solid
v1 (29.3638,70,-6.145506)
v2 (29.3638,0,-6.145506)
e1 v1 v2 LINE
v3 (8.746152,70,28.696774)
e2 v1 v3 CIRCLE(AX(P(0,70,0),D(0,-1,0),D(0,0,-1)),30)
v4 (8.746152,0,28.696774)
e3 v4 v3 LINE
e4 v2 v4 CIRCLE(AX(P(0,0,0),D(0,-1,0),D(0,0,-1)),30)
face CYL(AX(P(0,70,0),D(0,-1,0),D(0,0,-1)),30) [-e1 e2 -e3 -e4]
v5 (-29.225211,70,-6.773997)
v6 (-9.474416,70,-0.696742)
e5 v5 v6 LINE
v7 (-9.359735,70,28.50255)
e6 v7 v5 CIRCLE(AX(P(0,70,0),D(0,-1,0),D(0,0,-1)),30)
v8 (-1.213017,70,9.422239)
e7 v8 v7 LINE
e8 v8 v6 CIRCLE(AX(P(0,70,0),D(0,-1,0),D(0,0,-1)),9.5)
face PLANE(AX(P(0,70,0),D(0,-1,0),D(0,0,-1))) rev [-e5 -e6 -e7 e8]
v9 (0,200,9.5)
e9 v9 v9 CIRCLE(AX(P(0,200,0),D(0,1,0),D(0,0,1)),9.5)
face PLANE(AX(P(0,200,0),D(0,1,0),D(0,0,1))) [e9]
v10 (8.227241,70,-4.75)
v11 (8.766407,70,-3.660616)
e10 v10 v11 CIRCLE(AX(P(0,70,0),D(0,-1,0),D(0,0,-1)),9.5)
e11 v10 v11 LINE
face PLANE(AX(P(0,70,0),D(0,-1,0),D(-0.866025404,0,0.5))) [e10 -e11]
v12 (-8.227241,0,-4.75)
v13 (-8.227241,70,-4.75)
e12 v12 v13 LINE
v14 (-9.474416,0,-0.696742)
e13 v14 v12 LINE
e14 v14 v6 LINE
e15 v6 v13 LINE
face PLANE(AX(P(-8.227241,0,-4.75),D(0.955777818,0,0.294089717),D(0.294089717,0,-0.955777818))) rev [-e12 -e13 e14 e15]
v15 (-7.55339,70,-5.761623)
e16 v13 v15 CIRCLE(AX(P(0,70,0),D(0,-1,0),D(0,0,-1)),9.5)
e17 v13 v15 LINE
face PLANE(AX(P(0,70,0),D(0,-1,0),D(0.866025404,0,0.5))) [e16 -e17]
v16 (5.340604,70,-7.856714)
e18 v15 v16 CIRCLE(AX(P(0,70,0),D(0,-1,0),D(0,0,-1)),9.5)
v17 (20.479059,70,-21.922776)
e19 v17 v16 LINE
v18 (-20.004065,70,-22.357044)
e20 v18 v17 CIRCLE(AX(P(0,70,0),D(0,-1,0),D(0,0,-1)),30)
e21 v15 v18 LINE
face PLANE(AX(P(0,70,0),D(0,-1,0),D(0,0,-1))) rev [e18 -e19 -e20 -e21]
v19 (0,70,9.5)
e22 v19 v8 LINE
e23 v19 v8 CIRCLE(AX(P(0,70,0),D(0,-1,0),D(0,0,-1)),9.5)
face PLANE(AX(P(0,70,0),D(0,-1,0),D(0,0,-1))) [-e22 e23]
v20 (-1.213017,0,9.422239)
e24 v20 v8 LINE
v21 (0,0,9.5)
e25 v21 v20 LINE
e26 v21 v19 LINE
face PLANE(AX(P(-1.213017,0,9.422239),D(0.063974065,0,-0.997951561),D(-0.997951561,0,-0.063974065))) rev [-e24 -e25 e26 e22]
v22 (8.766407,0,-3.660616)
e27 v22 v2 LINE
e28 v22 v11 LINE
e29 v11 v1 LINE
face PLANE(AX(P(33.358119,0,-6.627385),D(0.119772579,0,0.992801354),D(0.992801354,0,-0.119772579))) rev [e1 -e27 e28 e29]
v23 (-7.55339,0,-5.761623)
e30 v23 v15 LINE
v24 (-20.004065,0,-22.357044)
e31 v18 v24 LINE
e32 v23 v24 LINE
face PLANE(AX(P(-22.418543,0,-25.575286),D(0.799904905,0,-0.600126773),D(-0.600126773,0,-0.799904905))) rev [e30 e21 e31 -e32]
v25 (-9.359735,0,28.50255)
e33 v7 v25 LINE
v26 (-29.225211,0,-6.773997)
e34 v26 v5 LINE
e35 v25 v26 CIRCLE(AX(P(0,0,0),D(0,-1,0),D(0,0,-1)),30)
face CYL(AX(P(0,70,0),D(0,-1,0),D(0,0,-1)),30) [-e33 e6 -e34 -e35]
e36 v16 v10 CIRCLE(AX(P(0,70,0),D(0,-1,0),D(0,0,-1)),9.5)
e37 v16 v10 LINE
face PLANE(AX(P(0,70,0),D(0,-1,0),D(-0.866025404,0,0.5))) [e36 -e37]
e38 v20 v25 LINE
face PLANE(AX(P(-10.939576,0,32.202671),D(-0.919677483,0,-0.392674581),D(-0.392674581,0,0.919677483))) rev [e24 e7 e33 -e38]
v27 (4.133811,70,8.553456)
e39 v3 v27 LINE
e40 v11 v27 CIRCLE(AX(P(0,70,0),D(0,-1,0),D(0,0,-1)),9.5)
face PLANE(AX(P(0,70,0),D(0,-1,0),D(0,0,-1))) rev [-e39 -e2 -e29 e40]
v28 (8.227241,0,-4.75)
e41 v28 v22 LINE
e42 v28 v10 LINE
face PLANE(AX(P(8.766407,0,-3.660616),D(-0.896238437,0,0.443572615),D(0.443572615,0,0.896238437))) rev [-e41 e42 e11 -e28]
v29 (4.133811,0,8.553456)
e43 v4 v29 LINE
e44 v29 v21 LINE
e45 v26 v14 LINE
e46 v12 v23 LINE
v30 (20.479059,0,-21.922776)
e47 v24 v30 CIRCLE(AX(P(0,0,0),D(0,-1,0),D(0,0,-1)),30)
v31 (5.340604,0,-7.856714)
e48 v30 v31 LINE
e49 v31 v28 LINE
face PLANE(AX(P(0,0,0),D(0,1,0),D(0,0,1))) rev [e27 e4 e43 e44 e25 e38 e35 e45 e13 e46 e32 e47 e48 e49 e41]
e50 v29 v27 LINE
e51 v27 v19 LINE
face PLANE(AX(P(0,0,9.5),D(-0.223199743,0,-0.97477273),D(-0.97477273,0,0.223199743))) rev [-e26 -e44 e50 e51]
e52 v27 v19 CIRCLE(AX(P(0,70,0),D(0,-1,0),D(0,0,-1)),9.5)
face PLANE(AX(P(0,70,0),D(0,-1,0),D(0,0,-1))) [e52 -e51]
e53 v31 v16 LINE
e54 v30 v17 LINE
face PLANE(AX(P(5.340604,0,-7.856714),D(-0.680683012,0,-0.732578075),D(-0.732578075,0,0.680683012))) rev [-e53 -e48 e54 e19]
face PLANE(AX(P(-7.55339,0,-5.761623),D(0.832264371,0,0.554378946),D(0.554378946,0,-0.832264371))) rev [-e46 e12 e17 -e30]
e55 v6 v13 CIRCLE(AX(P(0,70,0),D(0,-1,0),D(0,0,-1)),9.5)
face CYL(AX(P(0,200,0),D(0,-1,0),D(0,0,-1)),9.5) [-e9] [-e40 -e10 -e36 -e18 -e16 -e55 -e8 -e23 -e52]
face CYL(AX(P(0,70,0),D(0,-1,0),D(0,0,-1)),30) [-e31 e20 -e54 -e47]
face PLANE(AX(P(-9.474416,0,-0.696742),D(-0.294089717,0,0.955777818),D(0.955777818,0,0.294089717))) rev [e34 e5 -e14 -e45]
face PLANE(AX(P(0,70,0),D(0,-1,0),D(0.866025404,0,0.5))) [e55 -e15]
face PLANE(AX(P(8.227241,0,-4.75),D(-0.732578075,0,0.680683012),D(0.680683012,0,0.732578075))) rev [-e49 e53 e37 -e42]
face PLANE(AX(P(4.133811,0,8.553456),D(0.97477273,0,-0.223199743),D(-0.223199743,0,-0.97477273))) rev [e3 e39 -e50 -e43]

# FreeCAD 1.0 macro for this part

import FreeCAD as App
import Part
import Sketcher
Q = App.Units.Quantity


def add_polygon(sketch, points):
    """Adds a closed chain of lines whose ends are joined by coincident constraints."""
    first, n = sketch.GeometryCount, len(points)
    for a, b in zip(points, points[1:] + points[:1]):
        sketch.addGeometry(Part.LineSegment(App.Vector(*a, 0), App.Vector(*b, 0)), False)
    for i in range(n):
        sketch.addConstraint(Sketcher.Constraint("Coincident", first + i, 2, first + (i + 1) % n, 1))

doc = App.newDocument("Part")
body = doc.addObject("PartDesign::Body", "Body")

# Sketch on XZ plane
sketch1 = body.newObject("Sketcher::SketchObject", "Sketch")
sketch1.AttachmentSupport = (doc.getObject("XZ_Plane"), [""])
sketch1.MapMode = "FlatFace"
sketch1.addGeometry(Part.Circle(App.Vector(0, 0, 0), App.Vector(0, 0, 1), 10), False)
sketch1.addConstraint([
    Sketcher.Constraint("Coincident", 0, 3, -1, 1),
    Sketcher.Constraint("Diameter", 0, Q("19 mm")),
])
pad1 = body.newObject("PartDesign::Pad", "Pad")
pad1.Profile = sketch1
pad1.Length = 200
pad1.Reversed = True

# Sketch on XZ plane
sketch2 = body.newObject("Sketcher::SketchObject", "Sketch001")
sketch2.AttachmentSupport = (doc.getObject("XZ_Plane"), [""])
sketch2.MapMode = "FlatFace"
sketch2.addGeometry([
    Part.Circle(App.Vector(0, 0, 0), App.Vector(0, 0, 1), 30),
    Part.Circle(App.Vector(0, 0, 0), App.Vector(0, 0, 1), 10),
], False)
sketch2.addConstraint([
    Sketcher.Constraint("Coincident", 0, 3, -1, 1),
    Sketcher.Constraint("Coincident", 1, 3, -1, 1),
    Sketcher.Constraint("Diameter", 0, Q("60 mm")),
    Sketcher.Constraint("Diameter", 1, Q("19 mm")),
])
pad2 = body.newObject("PartDesign::Pad", "Pad001")
pad2.Profile = sketch2
pad2.Length = 70
pad2.Reversed = True

# Sketch on XZ plane
sketch3 = body.newObject("Sketcher::SketchObject", "Sketch002")
sketch3.AttachmentSupport = (doc.getObject("XZ_Plane"), [""])
sketch3.MapMode = "FlatFace"
sketch3.AttachmentOffset = App.Placement(App.Vector(0, 0, -70), App.Rotation())
add_polygon(sketch3, [(-1.2, 9.4), (-10.9, 32.2), (9.5, 32.2), (4.1, 8.6), (0, 9.5)])  # lines 0-4
sketch3.addConstraint([
    Sketcher.Constraint("Horizontal", 1),
    Sketcher.Constraint("PointOnObject", 3, 2, -2),
    Sketcher.Constraint("Perpendicular", 2, 3),
    Sketcher.Constraint("DistanceY", -1, 1, 3, 2, Q("9.5 mm")),
    Sketcher.Constraint("Distance", 2, Q("24.261261 mm")),
    Sketcher.Constraint("DistanceX", 1, 1, 1, 2, Q("20.488494 mm")),
    Sketcher.Constraint("DistanceY", -1, 1, 0, 2, Q("32.202671 mm")),
    Sketcher.Constraint("DistanceX", -1, 1, 1, 2, Q("9.548919 mm")),
    Sketcher.Constraint("DistanceY", -1, 1, 4, 2, Q("9.422239 mm")),
    Sketcher.Constraint("DistanceX", 4, 2, 2, 2, Q("5.346829 mm")),
])
pocket1 = body.newObject("PartDesign::Pocket", "Pocket")
pocket1.Profile = sketch3
pocket1.Type = "ThroughAll"
pocket1.Reversed = True
doc.recompute()

polarpattern = body.newObject("PartDesign::PolarPattern", "PolarPattern")
polarpattern.Originals = [pocket1]
polarpattern.Axis = (doc.getObject("Y_Axis"), [""])
polarpattern.Angle = 360
polarpattern.Occurrences = 3
body.Tip = polarpattern

doc.recompute()
